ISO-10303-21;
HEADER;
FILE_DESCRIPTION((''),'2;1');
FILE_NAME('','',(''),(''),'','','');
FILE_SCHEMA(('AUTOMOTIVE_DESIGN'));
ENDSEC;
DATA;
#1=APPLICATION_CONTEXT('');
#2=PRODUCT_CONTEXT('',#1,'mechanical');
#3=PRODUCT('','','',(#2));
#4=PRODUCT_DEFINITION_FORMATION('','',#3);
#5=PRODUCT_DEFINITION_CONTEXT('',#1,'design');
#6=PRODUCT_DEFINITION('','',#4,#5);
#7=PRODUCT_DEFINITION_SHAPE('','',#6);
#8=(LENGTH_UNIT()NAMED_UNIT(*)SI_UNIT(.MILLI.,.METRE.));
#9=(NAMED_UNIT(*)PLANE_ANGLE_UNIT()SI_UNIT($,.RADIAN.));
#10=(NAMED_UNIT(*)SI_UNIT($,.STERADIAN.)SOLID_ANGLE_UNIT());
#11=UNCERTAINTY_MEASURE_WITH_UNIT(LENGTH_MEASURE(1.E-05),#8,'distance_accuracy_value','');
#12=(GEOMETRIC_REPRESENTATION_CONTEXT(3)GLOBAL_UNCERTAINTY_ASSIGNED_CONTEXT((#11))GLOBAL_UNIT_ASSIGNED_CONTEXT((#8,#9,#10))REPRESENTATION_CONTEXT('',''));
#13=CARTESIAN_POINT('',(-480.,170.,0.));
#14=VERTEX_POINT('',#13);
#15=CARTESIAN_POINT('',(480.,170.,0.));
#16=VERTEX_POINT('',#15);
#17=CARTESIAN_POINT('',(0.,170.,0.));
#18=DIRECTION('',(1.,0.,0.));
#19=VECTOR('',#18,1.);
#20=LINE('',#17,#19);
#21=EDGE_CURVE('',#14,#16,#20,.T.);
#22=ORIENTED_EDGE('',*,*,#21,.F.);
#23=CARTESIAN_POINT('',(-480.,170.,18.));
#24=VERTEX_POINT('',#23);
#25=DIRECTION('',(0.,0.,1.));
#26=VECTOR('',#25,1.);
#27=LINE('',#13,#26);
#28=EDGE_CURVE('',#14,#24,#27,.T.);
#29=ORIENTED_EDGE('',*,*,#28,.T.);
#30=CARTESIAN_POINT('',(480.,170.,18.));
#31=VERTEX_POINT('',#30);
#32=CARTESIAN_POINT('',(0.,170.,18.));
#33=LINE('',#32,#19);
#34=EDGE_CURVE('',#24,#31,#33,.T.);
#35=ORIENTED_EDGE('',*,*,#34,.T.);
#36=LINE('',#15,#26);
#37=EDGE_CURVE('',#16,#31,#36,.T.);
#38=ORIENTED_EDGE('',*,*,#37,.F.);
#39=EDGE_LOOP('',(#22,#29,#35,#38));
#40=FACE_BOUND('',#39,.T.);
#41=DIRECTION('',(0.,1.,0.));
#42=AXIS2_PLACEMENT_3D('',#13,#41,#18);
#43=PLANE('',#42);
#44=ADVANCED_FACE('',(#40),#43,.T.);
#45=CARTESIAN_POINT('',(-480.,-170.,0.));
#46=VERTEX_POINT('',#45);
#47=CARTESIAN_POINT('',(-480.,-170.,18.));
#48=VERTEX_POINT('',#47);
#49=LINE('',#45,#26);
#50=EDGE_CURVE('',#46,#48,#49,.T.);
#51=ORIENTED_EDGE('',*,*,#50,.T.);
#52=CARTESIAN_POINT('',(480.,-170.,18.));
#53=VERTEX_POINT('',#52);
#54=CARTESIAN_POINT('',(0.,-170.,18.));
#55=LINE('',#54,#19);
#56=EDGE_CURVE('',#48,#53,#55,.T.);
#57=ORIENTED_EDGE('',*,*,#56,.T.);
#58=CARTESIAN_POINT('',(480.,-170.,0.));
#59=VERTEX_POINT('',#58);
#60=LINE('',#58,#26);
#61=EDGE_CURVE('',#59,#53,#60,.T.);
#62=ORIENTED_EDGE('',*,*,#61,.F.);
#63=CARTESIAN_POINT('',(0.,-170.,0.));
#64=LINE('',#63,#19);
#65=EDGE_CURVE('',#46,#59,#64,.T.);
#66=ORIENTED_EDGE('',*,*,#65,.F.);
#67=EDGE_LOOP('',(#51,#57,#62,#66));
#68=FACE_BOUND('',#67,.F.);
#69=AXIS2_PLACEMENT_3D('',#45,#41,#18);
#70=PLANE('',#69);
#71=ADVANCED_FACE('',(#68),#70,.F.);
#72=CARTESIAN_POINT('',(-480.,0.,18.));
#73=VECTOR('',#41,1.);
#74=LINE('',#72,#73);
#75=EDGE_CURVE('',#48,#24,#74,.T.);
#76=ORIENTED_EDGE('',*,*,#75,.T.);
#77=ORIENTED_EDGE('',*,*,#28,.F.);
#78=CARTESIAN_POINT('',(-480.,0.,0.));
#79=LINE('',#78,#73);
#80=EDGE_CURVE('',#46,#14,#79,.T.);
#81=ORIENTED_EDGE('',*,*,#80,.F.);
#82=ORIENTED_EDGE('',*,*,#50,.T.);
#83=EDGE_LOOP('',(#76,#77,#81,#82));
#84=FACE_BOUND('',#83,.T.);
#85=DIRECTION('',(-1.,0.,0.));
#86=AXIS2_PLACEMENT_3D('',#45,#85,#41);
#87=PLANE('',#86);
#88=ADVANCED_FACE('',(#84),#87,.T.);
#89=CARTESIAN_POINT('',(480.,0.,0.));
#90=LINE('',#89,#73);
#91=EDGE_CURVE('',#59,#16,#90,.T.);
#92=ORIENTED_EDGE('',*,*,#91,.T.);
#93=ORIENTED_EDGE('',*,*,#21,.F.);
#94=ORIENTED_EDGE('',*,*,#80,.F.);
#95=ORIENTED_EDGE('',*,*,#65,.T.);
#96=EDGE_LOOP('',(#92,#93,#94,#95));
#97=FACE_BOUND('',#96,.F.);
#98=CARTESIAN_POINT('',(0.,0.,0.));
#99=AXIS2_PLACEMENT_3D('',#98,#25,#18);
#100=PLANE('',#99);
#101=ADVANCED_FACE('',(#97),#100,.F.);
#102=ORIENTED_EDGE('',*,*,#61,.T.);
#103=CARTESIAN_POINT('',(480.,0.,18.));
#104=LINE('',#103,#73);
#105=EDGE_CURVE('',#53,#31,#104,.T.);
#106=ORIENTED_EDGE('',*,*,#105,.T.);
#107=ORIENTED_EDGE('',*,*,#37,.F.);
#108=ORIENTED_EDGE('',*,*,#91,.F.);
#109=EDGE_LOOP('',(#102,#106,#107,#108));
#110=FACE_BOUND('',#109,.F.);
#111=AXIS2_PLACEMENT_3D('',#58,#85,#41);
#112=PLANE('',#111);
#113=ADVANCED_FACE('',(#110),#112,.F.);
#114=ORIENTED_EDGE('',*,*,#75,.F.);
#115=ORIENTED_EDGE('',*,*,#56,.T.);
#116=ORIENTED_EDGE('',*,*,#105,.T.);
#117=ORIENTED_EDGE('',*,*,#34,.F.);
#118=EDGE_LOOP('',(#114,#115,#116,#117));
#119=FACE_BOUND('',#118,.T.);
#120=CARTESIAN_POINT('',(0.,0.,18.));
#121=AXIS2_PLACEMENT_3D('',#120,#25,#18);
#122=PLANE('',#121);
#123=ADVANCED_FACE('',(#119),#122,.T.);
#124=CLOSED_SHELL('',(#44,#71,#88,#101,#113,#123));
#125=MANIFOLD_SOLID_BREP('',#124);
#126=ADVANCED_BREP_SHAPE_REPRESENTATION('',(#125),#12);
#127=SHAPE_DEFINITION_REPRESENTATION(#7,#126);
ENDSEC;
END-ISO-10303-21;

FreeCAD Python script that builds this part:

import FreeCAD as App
import Part
import Sketcher

doc = App.newDocument("Part")
body = doc.addObject("PartDesign::Body", "Body")

sketch1 = doc.addObject("Sketcher::SketchObject", "Sketch")
body.addObject(sketch1)
sketch1.AttachmentSupport = (doc.XY_Plane, [""])
sketch1.MapMode = "FlatFace"
sketch1.addGeometry([
    Part.LineSegment(App.Vector(-480, 170, 0), App.Vector(-480, -170, 0)),
    Part.LineSegment(App.Vector(-480, -170, 0), App.Vector(480, -170, 0)),
    Part.LineSegment(App.Vector(480, -170, 0), App.Vector(480, 170, 0)),
    Part.LineSegment(App.Vector(480, 170, 0), App.Vector(-480, 170, 0)),
], False)
sketch1.addConstraint([
    Sketcher.Constraint("Coincident", 0, 2, 1, 1),
    Sketcher.Constraint("Coincident", 1, 2, 2, 1),
    Sketcher.Constraint("Coincident", 2, 2, 3, 1),
    Sketcher.Constraint("Coincident", 3, 2, 0, 1),
    Sketcher.Constraint("Vertical", 0),
    Sketcher.Constraint("Horizontal", 1),
    Sketcher.Constraint("Vertical", 2),
    Sketcher.Constraint("Horizontal", 3),
    Sketcher.Constraint("Symmetric", 0, 2, 2, 2, -1, 1),
    Sketcher.Constraint("DistanceX", 1, 1, 1, 2, 960.0),
    Sketcher.Constraint("DistanceY", 0, 2, 0, 1, 340.0),
])
pad1 = doc.addObject("PartDesign::Pad", "Pad")
body.addObject(pad1)
pad1.Profile = sketch1
pad1.Length = 18

doc.recompute()
